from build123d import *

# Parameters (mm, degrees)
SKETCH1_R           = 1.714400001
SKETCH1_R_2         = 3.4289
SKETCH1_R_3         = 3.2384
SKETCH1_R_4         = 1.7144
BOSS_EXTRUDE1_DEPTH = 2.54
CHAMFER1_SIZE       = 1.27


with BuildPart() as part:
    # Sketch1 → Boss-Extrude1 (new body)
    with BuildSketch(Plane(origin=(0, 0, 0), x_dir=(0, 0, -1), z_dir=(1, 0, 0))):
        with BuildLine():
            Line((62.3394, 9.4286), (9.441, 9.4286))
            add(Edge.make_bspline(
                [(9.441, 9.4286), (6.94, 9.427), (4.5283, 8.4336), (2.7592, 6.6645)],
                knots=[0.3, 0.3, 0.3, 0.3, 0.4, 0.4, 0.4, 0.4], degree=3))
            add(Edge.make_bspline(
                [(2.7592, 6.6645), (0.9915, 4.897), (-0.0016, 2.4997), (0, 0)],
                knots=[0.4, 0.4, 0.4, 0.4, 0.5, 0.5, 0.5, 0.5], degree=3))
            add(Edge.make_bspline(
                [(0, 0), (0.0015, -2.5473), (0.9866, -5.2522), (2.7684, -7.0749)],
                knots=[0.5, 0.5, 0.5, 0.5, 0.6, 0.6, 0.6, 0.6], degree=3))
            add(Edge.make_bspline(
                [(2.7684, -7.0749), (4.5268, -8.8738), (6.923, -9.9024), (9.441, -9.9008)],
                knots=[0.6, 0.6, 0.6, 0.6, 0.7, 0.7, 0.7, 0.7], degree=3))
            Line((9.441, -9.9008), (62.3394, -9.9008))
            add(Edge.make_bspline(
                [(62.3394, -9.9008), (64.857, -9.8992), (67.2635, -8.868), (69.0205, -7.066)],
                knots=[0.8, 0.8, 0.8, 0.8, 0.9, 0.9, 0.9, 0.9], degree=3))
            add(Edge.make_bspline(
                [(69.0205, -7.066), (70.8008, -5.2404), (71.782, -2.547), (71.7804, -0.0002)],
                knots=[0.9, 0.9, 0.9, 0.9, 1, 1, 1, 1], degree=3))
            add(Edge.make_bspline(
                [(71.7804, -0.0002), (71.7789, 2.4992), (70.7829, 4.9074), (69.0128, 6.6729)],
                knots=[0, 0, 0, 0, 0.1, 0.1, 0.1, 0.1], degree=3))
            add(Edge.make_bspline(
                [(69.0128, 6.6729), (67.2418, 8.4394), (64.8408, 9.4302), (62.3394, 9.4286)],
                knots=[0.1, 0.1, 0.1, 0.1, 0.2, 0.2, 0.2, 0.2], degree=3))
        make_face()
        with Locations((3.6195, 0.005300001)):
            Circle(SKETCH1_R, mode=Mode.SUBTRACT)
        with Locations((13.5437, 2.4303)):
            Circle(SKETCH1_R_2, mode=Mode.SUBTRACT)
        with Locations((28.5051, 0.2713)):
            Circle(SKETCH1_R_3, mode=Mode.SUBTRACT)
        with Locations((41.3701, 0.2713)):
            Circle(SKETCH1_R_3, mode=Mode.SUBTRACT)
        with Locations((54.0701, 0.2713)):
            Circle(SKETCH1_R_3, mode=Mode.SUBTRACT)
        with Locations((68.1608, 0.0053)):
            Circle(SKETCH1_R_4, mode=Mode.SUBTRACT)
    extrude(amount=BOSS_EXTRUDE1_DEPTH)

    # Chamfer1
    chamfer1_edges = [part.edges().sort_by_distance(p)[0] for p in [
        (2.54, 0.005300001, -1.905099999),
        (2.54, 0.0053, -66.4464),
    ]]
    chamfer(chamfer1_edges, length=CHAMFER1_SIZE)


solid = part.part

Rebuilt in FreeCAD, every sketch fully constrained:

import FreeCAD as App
import Part
import Sketcher

V = App.Vector
Q = App.Units.Quantity


def edges_at(feature, points):
    """Names of the edges that pass closest to the given points."""
    edges = feature.Shape.Edges
    near = lambda p: min(range(len(edges)), key=lambda i: edges[i].distToShape(Part.Vertex(*p))[0])
    return sorted({f"Edge{near(p) + 1}" for p in points})

doc = App.newDocument("Part")
body = doc.addObject("PartDesign::Body", "Body")

sketch1 = body.newObject("Sketcher::SketchObject", "Sketch")
sketch1.AttachmentSupport = (doc.getObject("YZ_Plane"), [""])
sketch1.MapMode = "FlatFace"
sketch1.addGeometry(Part.LineSegment(V(9.4286, -62.3394, 0), V(9.4286, -9.441, 0)), False)
sketch1.addGeometry(Part.BSplineCurve([V(9.4286, -9.441, 0), V(9.427, -6.94, 0), V(8.4336, -4.5283, 0), V(6.6645, -2.7592, 0)], [4, 4], [0.3, 0.4], False, 3, [1, 1, 1, 1], False), False)
sketch1.addGeometry(Part.BSplineCurve([V(6.6645, -2.7592, 0), V(4.897, -0.9915, 0), V(2.4997, 0.0016, 0), V(0, 0, 0)], [4, 4], [0.4, 0.5], False, 3, [1, 1, 1, 1], False), False)
sketch1.addGeometry(Part.BSplineCurve([V(0, 0, 0), V(-2.5473, -0.0015, 0), V(-5.2522, -0.9866, 0), V(-7.0749, -2.7684, 0)], [4, 4], [0.5, 0.6], False, 3, [1, 1, 1, 1], False), False)
sketch1.addGeometry(Part.BSplineCurve([V(-7.0749, -2.7684, 0), V(-8.8738, -4.5268, 0), V(-9.9024, -6.923, 0), V(-9.9008, -9.441, 0)], [4, 4], [0.6, 0.7], False, 3, [1, 1, 1, 1], False), False)
sketch1.addGeometry(Part.LineSegment(V(-9.9008, -9.441, 0), V(-9.9008, -62.3394, 0)), False)
sketch1.addGeometry(Part.BSplineCurve([V(-9.9008, -62.3394, 0), V(-9.8992, -64.857, 0), V(-8.868, -67.2635, 0), V(-7.066, -69.0205, 0)], [4, 4], [0.8, 0.9], False, 3, [1, 1, 1, 1], False), False)
sketch1.addGeometry(Part.BSplineCurve([V(-7.066, -69.0205, 0), V(-5.2404, -70.8008, 0), V(-2.547, -71.782, 0), V(-0.0002, -71.7804, 0)], [4, 4], [0.9, 1], False, 3, [1, 1, 1, 1], False), False)
sketch1.addGeometry(Part.BSplineCurve([V(-0.0002, -71.7804, 0), V(2.4992, -71.7789, 0), V(4.9074, -70.7829, 0), V(6.6729, -69.0128, 0)], [4, 4], [0, 0.1], False, 3, [1, 1, 1, 1], False), False)
sketch1.addGeometry(Part.BSplineCurve([V(6.6729, -69.0128, 0), V(8.4394, -67.2418, 0), V(9.4302, -64.8408, 0), V(9.4286, -62.3394, 0)], [4, 4], [0.1, 0.2], False, 3, [1, 1, 1, 1], False), False)
sketch1.addGeometry(Part.Circle(V(0.0053, -3.6195, 0), V(0, 0, 1), 1.7144), False)
sketch1.addGeometry(Part.Circle(V(0.2713, -28.5051, 0), V(0, 0, 1), 3.2384), False)
sketch1.addGeometry(Part.Circle(V(0.2713, -41.3701, 0), V(0, 0, 1), 3.2384), False)
sketch1.addGeometry(Part.Circle(V(0.2713, -54.0701, 0), V(0, 0, 1), 3.2384), False)
sketch1.addGeometry(Part.Circle(V(0.0053, -68.1608, 0), V(0, 0, 1), 1.7144), False)
sketch1.addGeometry(Part.Circle(V(2.4303, -13.5437, 0), V(0, 0, 1), 3.4289), False)
sketch1.addConstraint(Sketcher.Constraint("Block", 1))
sketch1.addConstraint(Sketcher.Constraint("Block", 2))
sketch1.addConstraint(Sketcher.Constraint("Block", 3))
sketch1.addConstraint(Sketcher.Constraint("Block", 4))
sketch1.addConstraint(Sketcher.Constraint("Block", 6))
sketch1.addConstraint(Sketcher.Constraint("Block", 7))
sketch1.addConstraint(Sketcher.Constraint("Block", 8))
sketch1.addConstraint(Sketcher.Constraint("Block", 9))
sketch1.addConstraint(Sketcher.Constraint("Coincident", 0, 2, 1, 1))
sketch1.addConstraint(Sketcher.Constraint("Coincident", 4, 2, 5, 1))
sketch1.addConstraint(Sketcher.Constraint("Coincident", 5, 2, 6, 1))
sketch1.addConstraint(Sketcher.Constraint("Coincident", 9, 2, 0, 1))
sketch1.addConstraint(Sketcher.Constraint("Equal", 11, 12))
sketch1.addConstraint(Sketcher.Constraint("Equal", 12, 13))
sketch1.addConstraint(Sketcher.Constraint("Equal", 10, 14))
sketch1.addConstraint(Sketcher.Constraint("Vertical", 11, 3, 12, 3))
sketch1.addConstraint(Sketcher.Constraint("Vertical", 12, 3, 13, 3))
sketch1.addConstraint(Sketcher.Constraint("Vertical", 10, 3, 14, 3))
sketch1.addConstraint(Sketcher.Constraint("DistanceY", 13, 3, 12, 3, Q("0.5 in")))
sketch1.addConstraint(Sketcher.Constraint("Diameter", 10, Q("3.4288 mm")))
sketch1.addConstraint(Sketcher.Constraint("Diameter", 11, Q("6.4768 mm")))
sketch1.addConstraint(Sketcher.Constraint("Diameter", 15, Q("6.8578 mm")))
sketch1.addConstraint(Sketcher.Constraint("DistanceX", 11, 3, 15, 3, Q("0.085 in")))
sketch1.addConstraint(Sketcher.Constraint("DistanceY", 10, 3, -1, 1, Q("0.1425 in")))
sketch1.addConstraint(Sketcher.Constraint("DistanceX", -1, 1, 10, 3, Q("0.0053 mm")))
sketch1.addConstraint(Sketcher.Constraint("DistanceX", -1, 1, 11, 3, Q("0.2713 mm")))
sketch1.addConstraint(Sketcher.Constraint("DistanceY", 11, 3, -1, 1, Q("28.5051 mm")))
sketch1.addConstraint(Sketcher.Constraint("DistanceY", 12, 3, -1, 1, Q("41.3701 mm")))
sketch1.addConstraint(Sketcher.Constraint("DistanceY", 14, 3, -1, 1, Q("68.1608 mm")))
sketch1.addConstraint(Sketcher.Constraint("DistanceY", 15, 3, -1, 1, Q("13.5437 mm")))
pad1 = body.newObject("PartDesign::Pad", "Pad")
pad1.Profile = sketch1
pad1.Length = Q("0.1 in")
doc.recompute()

chamfer = body.newObject("PartDesign::Chamfer", "Chamfer")
chamfer.Base = (pad1, edges_at(pad1, [(2.54, 0.005, -1.905), (2.54, 0.005, -66.446)]))
chamfer.Size = Q("0.05 in")

doc.recompute()
